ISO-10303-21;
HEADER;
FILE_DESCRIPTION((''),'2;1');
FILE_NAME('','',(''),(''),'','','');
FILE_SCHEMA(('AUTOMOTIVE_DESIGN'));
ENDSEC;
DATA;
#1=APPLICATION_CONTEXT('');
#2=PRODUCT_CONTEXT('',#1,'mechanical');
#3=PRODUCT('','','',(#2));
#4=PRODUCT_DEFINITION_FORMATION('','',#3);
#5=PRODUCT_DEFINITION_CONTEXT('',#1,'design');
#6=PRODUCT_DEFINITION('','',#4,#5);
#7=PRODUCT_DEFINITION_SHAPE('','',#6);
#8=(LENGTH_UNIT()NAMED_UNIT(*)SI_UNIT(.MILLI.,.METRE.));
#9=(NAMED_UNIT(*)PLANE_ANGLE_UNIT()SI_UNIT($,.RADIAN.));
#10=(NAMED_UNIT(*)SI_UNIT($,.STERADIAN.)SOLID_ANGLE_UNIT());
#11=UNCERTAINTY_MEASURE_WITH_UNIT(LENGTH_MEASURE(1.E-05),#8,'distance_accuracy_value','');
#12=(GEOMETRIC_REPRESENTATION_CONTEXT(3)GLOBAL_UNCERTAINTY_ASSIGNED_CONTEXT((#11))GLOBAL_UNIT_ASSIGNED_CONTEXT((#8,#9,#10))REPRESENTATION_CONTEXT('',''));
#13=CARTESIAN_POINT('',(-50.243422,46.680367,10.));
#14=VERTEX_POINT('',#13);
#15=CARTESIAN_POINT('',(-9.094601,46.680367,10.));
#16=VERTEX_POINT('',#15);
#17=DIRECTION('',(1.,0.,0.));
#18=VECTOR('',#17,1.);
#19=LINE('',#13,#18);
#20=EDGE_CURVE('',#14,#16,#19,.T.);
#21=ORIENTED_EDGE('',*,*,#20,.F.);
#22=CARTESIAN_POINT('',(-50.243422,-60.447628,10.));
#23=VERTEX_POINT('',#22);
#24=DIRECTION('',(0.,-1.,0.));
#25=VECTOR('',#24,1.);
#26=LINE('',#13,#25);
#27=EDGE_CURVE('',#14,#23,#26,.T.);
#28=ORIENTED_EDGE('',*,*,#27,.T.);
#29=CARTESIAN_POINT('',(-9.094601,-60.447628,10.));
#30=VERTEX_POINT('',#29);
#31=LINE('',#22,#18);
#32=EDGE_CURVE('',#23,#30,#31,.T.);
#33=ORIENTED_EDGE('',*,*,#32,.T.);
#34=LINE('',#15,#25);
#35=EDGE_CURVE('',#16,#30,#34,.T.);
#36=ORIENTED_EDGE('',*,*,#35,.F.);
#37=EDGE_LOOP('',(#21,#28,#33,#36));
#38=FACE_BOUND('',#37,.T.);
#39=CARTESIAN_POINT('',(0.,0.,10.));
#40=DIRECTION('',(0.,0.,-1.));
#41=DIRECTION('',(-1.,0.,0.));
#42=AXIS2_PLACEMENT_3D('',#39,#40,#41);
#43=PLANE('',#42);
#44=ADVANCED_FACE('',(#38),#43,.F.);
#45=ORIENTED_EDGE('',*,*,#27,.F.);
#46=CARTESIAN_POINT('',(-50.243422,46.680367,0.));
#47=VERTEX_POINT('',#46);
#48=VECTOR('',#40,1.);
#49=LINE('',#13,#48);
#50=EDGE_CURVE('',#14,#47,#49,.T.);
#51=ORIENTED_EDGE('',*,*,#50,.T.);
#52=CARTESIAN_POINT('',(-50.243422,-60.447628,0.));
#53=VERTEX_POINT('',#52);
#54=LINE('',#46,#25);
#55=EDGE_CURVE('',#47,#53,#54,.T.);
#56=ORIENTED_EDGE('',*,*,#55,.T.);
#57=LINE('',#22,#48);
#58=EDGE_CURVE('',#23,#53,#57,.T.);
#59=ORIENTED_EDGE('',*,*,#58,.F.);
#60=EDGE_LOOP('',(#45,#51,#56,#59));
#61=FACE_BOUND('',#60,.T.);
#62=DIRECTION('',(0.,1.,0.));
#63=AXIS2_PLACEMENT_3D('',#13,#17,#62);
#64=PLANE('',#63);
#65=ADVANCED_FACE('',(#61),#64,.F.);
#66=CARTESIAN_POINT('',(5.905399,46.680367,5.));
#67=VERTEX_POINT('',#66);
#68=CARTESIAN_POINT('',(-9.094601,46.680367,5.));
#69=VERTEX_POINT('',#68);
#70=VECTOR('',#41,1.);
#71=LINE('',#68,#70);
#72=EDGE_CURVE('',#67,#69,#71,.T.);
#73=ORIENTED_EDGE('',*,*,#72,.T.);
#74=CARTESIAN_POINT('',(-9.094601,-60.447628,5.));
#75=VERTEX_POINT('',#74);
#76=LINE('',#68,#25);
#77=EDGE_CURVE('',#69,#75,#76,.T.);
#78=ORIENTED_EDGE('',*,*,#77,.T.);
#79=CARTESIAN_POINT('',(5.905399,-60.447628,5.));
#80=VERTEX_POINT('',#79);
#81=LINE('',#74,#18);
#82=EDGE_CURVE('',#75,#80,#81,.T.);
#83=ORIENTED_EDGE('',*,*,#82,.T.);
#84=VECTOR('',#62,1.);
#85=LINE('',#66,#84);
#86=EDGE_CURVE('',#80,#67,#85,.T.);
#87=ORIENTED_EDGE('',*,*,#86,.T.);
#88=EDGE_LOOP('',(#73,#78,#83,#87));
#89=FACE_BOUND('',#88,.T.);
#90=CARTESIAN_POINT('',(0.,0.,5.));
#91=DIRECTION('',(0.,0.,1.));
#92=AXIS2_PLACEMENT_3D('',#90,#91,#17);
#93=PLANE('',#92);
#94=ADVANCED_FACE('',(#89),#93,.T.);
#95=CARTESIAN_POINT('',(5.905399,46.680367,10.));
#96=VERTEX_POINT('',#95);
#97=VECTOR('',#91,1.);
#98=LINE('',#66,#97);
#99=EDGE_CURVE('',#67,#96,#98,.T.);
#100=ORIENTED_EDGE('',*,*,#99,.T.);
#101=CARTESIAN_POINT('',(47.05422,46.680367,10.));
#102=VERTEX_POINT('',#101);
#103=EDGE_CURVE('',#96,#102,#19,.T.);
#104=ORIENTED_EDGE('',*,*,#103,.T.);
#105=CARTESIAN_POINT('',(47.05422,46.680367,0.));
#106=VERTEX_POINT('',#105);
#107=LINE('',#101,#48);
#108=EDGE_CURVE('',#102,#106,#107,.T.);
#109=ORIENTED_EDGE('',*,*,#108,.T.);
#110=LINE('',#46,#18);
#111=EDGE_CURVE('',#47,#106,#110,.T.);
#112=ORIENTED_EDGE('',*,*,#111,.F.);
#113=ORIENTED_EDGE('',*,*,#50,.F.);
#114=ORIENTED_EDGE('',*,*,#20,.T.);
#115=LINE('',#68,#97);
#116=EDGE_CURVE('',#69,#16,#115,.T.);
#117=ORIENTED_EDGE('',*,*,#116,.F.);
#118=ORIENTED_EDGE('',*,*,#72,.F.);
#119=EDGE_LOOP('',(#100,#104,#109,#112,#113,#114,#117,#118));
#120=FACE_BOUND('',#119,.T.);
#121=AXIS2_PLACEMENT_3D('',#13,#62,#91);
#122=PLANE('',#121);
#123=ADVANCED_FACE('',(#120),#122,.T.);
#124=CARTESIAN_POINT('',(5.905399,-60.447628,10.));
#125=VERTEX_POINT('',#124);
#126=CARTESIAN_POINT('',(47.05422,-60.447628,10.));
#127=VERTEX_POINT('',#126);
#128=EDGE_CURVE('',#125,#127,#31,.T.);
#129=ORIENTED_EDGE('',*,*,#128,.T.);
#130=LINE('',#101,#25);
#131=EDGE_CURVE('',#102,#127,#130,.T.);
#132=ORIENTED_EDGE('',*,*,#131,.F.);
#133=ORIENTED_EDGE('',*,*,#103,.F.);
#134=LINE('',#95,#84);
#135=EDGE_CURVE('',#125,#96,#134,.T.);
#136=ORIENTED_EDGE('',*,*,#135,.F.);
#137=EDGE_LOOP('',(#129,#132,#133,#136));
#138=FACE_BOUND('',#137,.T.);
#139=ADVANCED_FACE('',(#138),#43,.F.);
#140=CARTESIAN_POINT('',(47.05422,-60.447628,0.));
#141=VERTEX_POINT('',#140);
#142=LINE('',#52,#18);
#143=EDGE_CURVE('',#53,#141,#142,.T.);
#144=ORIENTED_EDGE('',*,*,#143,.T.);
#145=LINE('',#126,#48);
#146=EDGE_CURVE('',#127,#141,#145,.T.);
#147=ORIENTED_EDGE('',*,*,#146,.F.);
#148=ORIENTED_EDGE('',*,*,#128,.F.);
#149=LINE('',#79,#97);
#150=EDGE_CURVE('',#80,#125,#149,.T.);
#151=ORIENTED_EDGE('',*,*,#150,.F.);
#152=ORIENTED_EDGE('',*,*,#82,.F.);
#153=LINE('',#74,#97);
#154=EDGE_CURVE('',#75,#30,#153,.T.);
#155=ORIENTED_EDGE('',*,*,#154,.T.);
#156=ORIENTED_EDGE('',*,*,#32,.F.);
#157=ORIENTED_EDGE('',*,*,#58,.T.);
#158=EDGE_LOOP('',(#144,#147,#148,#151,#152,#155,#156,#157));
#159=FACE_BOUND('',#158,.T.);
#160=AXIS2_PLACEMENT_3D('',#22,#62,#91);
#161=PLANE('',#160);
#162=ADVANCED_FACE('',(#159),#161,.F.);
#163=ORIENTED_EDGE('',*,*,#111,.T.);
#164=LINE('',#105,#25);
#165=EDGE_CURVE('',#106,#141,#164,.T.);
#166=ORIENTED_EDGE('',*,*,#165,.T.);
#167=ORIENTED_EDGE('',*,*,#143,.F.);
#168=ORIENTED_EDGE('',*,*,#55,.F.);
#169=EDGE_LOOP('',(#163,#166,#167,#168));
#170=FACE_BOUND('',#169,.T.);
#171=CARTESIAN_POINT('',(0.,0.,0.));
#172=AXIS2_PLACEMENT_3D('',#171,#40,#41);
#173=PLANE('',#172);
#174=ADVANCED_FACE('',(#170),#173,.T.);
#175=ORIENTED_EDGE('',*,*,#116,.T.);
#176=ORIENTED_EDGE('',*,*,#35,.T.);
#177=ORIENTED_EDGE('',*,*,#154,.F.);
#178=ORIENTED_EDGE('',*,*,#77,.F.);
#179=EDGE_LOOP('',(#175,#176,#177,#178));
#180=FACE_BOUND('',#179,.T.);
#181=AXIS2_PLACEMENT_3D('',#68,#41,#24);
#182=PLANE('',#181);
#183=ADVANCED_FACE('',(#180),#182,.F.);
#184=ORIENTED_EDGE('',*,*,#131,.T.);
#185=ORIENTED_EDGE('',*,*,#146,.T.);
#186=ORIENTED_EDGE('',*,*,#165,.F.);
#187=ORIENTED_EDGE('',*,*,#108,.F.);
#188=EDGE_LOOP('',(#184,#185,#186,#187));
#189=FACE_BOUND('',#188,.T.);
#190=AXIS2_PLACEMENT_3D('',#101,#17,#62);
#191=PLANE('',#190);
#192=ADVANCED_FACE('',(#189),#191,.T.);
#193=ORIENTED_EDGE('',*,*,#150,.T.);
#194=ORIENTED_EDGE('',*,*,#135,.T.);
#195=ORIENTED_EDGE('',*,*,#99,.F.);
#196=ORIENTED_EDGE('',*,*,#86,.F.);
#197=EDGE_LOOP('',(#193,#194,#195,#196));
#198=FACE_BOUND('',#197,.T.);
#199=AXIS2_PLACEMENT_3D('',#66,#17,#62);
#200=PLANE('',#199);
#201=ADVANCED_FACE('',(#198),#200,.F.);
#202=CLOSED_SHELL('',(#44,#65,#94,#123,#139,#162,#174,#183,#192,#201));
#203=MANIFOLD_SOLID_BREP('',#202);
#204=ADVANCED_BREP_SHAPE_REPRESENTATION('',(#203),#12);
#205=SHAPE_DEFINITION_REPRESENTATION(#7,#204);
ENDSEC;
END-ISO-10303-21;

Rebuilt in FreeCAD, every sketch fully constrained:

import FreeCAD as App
import Part
import Sketcher

V = App.Vector
Q = App.Units.Quantity

doc = App.newDocument("Part")
params = doc.addObject("Spreadsheet::Sheet", "Params")
for row, (alias, value) in enumerate([
    ("pad1_length", "10 mm"),
    ("sketch2_width", "15 mm"),
    ("pocket1_length", "5 mm"),
], start=1):
    params.set(f"A{row}", alias)
    params.set(f"B{row}", "=" + value)
    params.setAlias(f"B{row}", alias)

body = doc.addObject("PartDesign::Body", "Body")

sketch1 = body.newObject("Sketcher::SketchObject", "Sketch")
sketch1.AttachmentSupport = (doc.getObject("XY_Plane"), [""])
sketch1.MapMode = "FlatFace"
sketch1.addGeometry([
    Part.LineSegment(V(-50.243422, 46.680367, 0), V(-50.243422, -60.447628, 0)),
    Part.LineSegment(V(-50.243422, -60.447628, 0), V(47.05422, -60.447628, 0)),
    Part.LineSegment(V(47.05422, -60.447628, 0), V(47.05422, 46.680367, 0)),
    Part.LineSegment(V(47.05422, 46.680367, 0), V(-50.243422, 46.680367, 0)),
], False)
sketch1.addConstraint([
    Sketcher.Constraint("Coincident", 0, 2, 1, 1),
    Sketcher.Constraint("Coincident", 1, 2, 2, 1),
    Sketcher.Constraint("Coincident", 2, 2, 3, 1),
    Sketcher.Constraint("Coincident", 3, 2, 0, 1),
    Sketcher.Constraint("Vertical", 0),
    Sketcher.Constraint("Horizontal", 1),
    Sketcher.Constraint("Vertical", 2),
    Sketcher.Constraint("Horizontal", 3),
    Sketcher.Constraint("DistanceX", 1, 1, 1, 2, Q("97.297642 mm")),
    Sketcher.Constraint("DistanceY", 0, 2, 0, 1, Q("107.127995 mm")),
    Sketcher.Constraint("DistanceX", 0, 2, -1, 1, Q("50.243422 mm")),
    Sketcher.Constraint("DistanceY", 0, 2, -1, 1, Q("60.447628 mm")),
])
pad1 = body.newObject("PartDesign::Pad", "Pad")
pad1.Profile = sketch1
pad1.setExpression("Length", "Params.pad1_length")

sketch2 = body.newObject("Sketcher::SketchObject", "Sketch001")
sketch2.AttachmentSupport = (doc.getObject("XY_Plane"), [""])
sketch2.MapMode = "FlatFace"
sketch2.AttachmentOffset = App.Placement(V(0, 0, 10), App.Rotation())
sketch2.addGeometry([
    Part.LineSegment(V(-9.094601, 46.680367, 0), V(-9.094601, -60.447628, 0)),
    Part.LineSegment(V(-9.094601, -60.447628, 0), V(5.905399, -60.447628, 0)),
    Part.LineSegment(V(5.905399, -60.447628, 0), V(5.905399, 46.680367, 0)),
    Part.LineSegment(V(5.905399, 46.680367, 0), V(-9.094601, 46.680367, 0)),
], False)
sketch2.addConstraint([
    Sketcher.Constraint("Coincident", 0, 2, 1, 1),
    Sketcher.Constraint("Coincident", 1, 2, 2, 1),
    Sketcher.Constraint("Coincident", 2, 2, 3, 1),
    Sketcher.Constraint("Coincident", 3, 2, 0, 1),
    Sketcher.Constraint("Vertical", 0),
    Sketcher.Constraint("Horizontal", 1),
    Sketcher.Constraint("Vertical", 2),
    Sketcher.Constraint("Horizontal", 3),
    Sketcher.Constraint("DistanceX", 1, 1, 1, 2, Q("15 mm")),
    Sketcher.Constraint("DistanceX", 0, 2, -1, 1, Q("9.094601 mm")),
    Sketcher.Constraint("DistanceY", 0, 2, 0, 1, Q("107.127995 mm")),
    Sketcher.Constraint("DistanceY", 0, 2, -1, 1, Q("60.447628 mm")),
])
sketch2.setExpression("Constraints[8]", "Params.sketch2_width")
pocket1 = body.newObject("PartDesign::Pocket", "Pocket")
pocket1.Profile = sketch2
pocket1.setExpression("Length", "Params.pocket1_length")

doc.recompute()
